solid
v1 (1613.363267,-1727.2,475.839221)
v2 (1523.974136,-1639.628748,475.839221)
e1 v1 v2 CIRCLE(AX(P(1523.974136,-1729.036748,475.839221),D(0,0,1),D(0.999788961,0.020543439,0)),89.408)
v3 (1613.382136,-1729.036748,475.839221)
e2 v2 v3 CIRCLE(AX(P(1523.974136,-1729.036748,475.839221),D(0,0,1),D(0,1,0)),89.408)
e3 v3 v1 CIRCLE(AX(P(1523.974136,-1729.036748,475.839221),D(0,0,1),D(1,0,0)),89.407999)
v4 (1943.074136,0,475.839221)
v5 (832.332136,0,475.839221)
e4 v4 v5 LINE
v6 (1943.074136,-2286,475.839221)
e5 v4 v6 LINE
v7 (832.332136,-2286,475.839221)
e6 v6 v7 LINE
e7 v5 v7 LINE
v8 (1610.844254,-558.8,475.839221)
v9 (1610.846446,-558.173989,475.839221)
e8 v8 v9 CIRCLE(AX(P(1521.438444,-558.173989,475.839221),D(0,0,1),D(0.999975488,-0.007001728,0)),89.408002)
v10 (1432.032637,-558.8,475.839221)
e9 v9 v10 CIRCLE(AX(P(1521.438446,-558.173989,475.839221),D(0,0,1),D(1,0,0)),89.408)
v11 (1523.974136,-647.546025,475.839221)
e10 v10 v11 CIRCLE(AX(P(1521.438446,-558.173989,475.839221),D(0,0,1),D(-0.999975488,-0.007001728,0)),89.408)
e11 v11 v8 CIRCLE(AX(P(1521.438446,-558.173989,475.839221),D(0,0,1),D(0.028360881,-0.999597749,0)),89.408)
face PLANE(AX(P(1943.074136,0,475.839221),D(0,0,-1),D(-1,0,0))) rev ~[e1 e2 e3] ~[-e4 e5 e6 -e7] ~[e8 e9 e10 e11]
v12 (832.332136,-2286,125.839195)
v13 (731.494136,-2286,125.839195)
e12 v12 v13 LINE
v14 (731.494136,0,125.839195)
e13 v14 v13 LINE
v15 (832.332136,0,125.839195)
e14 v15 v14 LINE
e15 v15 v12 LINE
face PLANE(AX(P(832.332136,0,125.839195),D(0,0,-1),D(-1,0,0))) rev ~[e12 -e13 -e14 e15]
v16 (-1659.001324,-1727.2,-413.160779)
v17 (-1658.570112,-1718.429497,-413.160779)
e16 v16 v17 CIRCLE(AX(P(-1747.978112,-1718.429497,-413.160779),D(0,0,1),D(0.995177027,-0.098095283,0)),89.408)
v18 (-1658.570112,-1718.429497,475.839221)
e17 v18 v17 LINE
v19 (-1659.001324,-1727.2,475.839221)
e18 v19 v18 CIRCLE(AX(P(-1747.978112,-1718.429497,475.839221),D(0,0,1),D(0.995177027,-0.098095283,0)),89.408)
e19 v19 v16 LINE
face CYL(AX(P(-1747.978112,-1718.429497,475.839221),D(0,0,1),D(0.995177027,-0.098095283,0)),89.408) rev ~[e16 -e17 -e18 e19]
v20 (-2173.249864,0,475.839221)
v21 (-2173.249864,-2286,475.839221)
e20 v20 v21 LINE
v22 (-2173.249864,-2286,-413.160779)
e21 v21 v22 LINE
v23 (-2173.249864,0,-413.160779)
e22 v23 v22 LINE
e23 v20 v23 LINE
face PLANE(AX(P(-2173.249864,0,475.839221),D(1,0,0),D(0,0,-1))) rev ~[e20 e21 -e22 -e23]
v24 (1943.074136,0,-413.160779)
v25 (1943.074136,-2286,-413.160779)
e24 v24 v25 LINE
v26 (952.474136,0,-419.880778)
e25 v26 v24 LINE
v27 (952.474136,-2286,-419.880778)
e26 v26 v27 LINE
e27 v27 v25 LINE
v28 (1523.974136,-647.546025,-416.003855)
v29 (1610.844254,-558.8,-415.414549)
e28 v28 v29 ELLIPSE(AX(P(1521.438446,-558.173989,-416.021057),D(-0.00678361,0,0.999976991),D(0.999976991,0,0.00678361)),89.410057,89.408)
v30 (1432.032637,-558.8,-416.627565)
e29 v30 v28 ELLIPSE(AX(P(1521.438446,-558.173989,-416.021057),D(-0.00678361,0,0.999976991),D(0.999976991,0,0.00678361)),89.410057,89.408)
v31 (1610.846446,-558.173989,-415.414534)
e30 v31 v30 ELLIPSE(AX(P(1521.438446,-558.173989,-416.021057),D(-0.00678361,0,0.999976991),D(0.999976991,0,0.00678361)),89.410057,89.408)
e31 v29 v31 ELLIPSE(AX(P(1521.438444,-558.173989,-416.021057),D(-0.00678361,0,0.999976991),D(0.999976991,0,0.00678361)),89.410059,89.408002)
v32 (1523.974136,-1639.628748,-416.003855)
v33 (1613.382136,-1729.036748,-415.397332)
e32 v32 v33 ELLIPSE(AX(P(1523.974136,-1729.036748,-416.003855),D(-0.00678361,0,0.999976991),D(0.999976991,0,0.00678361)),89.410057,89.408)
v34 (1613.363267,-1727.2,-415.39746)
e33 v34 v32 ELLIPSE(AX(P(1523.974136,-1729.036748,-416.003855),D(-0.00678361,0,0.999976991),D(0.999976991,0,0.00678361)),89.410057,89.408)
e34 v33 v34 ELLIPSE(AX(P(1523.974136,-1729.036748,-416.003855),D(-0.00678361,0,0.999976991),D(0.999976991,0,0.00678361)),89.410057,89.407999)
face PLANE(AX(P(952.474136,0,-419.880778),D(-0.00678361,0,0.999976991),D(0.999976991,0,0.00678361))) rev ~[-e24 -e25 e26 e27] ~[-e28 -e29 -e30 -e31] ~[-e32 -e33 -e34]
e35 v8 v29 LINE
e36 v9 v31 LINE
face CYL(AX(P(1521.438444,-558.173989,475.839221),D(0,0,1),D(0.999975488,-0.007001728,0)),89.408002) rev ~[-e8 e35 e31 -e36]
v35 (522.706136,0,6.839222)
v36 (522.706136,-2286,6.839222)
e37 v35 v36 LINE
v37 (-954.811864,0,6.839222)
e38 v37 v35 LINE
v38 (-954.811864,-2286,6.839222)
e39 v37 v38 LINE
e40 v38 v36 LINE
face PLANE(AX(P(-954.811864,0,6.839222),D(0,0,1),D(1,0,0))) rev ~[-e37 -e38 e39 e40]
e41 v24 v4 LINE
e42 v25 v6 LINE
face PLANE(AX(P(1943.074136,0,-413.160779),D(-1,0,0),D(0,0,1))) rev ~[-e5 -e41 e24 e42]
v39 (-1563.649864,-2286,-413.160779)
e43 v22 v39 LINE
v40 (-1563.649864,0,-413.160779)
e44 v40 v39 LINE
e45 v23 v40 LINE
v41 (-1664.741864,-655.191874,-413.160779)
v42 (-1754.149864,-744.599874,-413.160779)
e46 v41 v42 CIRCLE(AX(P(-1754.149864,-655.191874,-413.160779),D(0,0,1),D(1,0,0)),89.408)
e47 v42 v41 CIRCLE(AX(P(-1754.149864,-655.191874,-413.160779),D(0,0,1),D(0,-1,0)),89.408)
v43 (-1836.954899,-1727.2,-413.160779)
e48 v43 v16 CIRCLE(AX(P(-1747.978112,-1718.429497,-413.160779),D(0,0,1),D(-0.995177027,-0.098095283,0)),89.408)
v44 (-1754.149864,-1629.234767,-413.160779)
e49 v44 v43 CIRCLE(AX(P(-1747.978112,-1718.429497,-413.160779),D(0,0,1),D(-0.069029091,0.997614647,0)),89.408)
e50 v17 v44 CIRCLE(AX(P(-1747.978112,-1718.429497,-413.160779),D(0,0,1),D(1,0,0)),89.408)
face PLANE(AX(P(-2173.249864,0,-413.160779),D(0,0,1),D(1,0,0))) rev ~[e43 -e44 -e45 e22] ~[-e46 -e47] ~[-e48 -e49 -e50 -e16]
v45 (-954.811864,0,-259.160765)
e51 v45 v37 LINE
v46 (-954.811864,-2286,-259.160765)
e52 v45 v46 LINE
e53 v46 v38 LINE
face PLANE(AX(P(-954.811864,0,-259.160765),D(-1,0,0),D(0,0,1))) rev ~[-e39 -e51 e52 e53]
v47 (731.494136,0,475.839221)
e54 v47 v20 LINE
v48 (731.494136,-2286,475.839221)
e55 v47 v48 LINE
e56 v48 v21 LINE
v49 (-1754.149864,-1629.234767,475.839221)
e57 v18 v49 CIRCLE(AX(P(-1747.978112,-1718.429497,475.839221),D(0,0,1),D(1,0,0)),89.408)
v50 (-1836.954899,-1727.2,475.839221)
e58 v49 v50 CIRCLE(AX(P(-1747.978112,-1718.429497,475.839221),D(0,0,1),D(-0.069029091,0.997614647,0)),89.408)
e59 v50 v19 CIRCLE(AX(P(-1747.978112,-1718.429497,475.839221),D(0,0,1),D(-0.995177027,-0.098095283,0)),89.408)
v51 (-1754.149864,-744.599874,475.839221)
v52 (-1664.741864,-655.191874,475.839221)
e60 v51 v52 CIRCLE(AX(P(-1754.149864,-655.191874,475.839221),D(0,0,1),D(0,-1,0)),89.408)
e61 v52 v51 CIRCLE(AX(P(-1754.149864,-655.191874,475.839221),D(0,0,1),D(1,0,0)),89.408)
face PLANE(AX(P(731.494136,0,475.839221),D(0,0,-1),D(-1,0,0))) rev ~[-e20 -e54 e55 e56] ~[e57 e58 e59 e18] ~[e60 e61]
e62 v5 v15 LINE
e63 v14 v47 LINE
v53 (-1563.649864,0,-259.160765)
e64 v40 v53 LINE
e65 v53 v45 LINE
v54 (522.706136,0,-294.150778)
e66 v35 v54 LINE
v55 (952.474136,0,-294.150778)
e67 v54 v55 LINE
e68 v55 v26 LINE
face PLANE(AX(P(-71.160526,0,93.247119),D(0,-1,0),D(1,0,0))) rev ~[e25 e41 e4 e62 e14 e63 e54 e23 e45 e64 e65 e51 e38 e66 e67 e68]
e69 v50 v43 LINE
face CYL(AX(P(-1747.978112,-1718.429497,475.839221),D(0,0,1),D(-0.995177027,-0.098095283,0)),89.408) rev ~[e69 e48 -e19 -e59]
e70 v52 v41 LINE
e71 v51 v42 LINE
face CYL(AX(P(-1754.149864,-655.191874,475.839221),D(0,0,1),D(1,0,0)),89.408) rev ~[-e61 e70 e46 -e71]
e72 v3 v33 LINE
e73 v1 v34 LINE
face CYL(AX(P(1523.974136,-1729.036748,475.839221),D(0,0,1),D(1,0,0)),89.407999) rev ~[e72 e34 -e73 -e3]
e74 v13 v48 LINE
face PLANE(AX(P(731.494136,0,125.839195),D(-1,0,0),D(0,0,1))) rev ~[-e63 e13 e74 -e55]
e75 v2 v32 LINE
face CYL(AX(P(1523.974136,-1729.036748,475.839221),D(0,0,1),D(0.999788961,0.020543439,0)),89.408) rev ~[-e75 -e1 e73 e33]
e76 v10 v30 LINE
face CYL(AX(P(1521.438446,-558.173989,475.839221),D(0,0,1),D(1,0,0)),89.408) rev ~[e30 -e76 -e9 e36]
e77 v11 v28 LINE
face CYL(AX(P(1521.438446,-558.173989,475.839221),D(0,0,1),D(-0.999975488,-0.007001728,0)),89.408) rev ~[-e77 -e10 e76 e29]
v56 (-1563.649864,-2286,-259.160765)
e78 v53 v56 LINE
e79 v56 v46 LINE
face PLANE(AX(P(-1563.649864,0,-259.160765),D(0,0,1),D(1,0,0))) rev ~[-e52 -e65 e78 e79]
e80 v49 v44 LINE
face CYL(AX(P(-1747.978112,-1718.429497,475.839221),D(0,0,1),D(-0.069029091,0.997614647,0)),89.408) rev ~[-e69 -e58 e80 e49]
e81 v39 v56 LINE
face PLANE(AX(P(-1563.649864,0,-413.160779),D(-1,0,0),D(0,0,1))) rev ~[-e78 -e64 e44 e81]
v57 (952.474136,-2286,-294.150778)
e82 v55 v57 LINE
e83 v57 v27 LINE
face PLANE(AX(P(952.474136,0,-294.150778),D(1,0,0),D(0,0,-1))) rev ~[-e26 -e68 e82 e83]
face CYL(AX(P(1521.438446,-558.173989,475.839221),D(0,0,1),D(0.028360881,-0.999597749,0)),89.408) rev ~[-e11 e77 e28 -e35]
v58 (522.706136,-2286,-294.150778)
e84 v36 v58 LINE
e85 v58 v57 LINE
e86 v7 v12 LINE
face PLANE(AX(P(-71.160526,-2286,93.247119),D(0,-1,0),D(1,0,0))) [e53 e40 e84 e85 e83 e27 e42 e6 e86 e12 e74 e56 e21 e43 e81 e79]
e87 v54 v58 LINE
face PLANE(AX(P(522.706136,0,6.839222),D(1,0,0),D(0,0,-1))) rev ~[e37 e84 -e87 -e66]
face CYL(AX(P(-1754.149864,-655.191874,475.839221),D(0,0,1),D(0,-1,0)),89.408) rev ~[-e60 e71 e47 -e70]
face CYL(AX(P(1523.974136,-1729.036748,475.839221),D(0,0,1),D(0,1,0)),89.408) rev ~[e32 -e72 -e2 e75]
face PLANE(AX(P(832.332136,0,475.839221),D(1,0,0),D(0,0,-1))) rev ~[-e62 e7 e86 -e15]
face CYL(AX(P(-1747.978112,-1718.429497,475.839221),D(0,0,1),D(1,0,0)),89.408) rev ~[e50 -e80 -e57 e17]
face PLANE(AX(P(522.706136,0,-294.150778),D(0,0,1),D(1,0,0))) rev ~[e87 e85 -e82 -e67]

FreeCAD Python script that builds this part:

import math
import FreeCAD as App
import Part
import Sketcher

V = App.Vector
Q = App.Units.Quantity


def add_polygon(sketch, points):
    """Adds a closed chain of lines whose ends are joined by coincident constraints."""
    first, n = sketch.GeometryCount, len(points)
    for a, b in zip(points, points[1:] + points[:1]):
        sketch.addGeometry(Part.LineSegment(App.Vector(*a, 0), App.Vector(*b, 0)), False)
    for i in range(n):
        sketch.addConstraint(Sketcher.Constraint("Coincident", first + i, 2, first + (i + 1) % n, 1))

doc = App.newDocument("Part")
body = doc.addObject("PartDesign::Body", "Body")

sketch1 = body.newObject("Sketcher::SketchObject", "Sketch")
sketch1.AttachmentSupport = (doc.getObject("XZ_Plane"), [""])
sketch1.MapMode = "FlatFace"
add_polygon(sketch1, [(-2173, -413), (-1564, -413), (-1564, -259), (-955, -259), (-955, 7), (523, 7), (523, -294), (952, -294), (952, -420), (1943, -413), (1943, 476), (832, 476), (832, 126), (731, 126), (731, 476), (-2173, 476)])
sketch1.addConstraint(Sketcher.Constraint("Horizontal", 0))
sketch1.addConstraint(Sketcher.Constraint("Vertical", 1))
sketch1.addConstraint(Sketcher.Constraint("Horizontal", 2))
sketch1.addConstraint(Sketcher.Constraint("Vertical", 3))
sketch1.addConstraint(Sketcher.Constraint("Horizontal", 4))
sketch1.addConstraint(Sketcher.Constraint("Vertical", 5))
sketch1.addConstraint(Sketcher.Constraint("Horizontal", 6))
sketch1.addConstraint(Sketcher.Constraint("Vertical", 7))
sketch1.addConstraint(Sketcher.Constraint("Vertical", 9))
sketch1.addConstraint(Sketcher.Constraint("Horizontal", 10))
sketch1.addConstraint(Sketcher.Constraint("Vertical", 11))
sketch1.addConstraint(Sketcher.Constraint("Horizontal", 12))
sketch1.addConstraint(Sketcher.Constraint("Vertical", 13))
sketch1.addConstraint(Sketcher.Constraint("Horizontal", 14))
sketch1.addConstraint(Sketcher.Constraint("Vertical", 15))
sketch1.addConstraint(Sketcher.Constraint("Horizontal", 0, 2, 8, 2))
sketch1.addConstraint(Sketcher.Constraint("Horizontal", 10, 2, 13, 2))
sketch1.addConstraint(Sketcher.Constraint("DistanceX", 0, 1, 0, 2, Q("24 in")))
sketch1.addConstraint(Sketcher.Constraint("DistanceY", 9, 1, 9, 2, Q("35 in")))
sketch1.addConstraint(Sketcher.Constraint("DistanceX", 7, 2, 8, 2, Q("39 in")))
sketch1.addConstraint(Sketcher.Constraint("DistanceX", 2, 1, 2, 2, Q("23.97 in")))
sketch1.addConstraint(Sketcher.Constraint("DistanceX", 4, 1, 4, 2, Q("58.17 in")))
sketch1.addConstraint(Sketcher.Constraint("DistanceX", 6, 1, 6, 2, Q("16.92 in")))
sketch1.addConstraint(Sketcher.Constraint("DistanceX", 10, 2, 10, 1, Q("43.73 in")))
sketch1.addConstraint(Sketcher.Constraint("DistanceX", 12, 2, 12, 1, Q("3.97 in")))
sketch1.addConstraint(Sketcher.Constraint("DistanceY", 5, 2, 5, 1, Q("11.85 in")))
sketch1.addConstraint(Sketcher.Constraint("DistanceY", 7, 2, 7, 1, Q("4.95 in")))
sketch1.addConstraint(Sketcher.Constraint("DistanceY", 0, 2, 3, 2, Q("420.000001 mm")))
sketch1.addConstraint(Sketcher.Constraint("DistanceY", 1, 1, 1, 2, Q("154.000014 mm")))
sketch1.addConstraint(Sketcher.Constraint("DistanceY", 11, 2, 11, 1, Q("350.000026 mm")))
sketch1.addConstraint(Sketcher.Constraint("DistanceY", 0, 2, -1, 1, Q("413.160779 mm")))
sketch1.addConstraint(Sketcher.Constraint("DistanceX", 0, 2, -1, 1, Q("1563.649864 mm")))
pad1 = body.newObject("PartDesign::Pad", "Pad")
pad1.Profile = sketch1
pad1.Length = Q("90 in")

sketch2 = body.newObject("Sketcher::SketchObject", "Sketch001")
sketch2.AttachmentSupport = (doc.getObject("XY_Plane"), [""])
sketch2.MapMode = "FlatFace"
sketch2.AttachmentOffset = App.Placement(V(0, 0, 475.839221), App.Rotation())
sketch2.addGeometry(Part.ArcOfCircle(Part.Circle(V(-1754.149864, -655.191874, 0), V(0, 0, 1), 89.408), math.radians(-90), math.radians(0)), False)
sketch2.addGeometry(Part.ArcOfCircle(Part.Circle(V(-1754.149864, -655.191874, 0), V(0, 0, 1), 89.408), math.radians(0), math.radians(270)), False)
sketch2.addGeometry(Part.ArcOfCircle(Part.Circle(V(-1747.978112, -1718.429497, 0), V(0, 0, 1), 89.408), math.radians(93.958223), math.radians(185.629499)), False)
sketch2.addGeometry(Part.ArcOfCircle(Part.Circle(V(-1747.978112, -1718.429497, 0), V(0, 0, 1), 89.408), math.radians(-174.370501), math.radians(-5.629499)), False)
sketch2.addGeometry(Part.ArcOfCircle(Part.Circle(V(-1747.978112, -1718.429497, 0), V(0, 0, 1), 89.408), math.radians(-5.629499), math.radians(0)), False)
sketch2.addGeometry(Part.ArcOfCircle(Part.Circle(V(-1747.978112, -1718.429497, 0), V(0, 0, 1), 89.408), math.radians(0), math.radians(93.958223)), False)
sketch2.addGeometry(Part.ArcOfCircle(Part.Circle(V(1521.438446, -558.173989, 0), V(0, 0, 1), 89.408), math.radians(-179.598827), math.radians(-88.374823)), False)
sketch2.addGeometry(Part.ArcOfCircle(Part.Circle(V(1521.438446, -558.173989, 0), V(0, 0, 1), 89.408), math.radians(-88.374823), math.radians(-0.401173)), False)
sketch2.addGeometry(Part.ArcOfCircle(Part.Circle(V(1521.438444, -558.173989, 0), V(0, 0, 1), 89.408002), math.radians(-0.401173), math.radians(0)), False)
sketch2.addGeometry(Part.ArcOfCircle(Part.Circle(V(1521.438446, -558.173989, 0), V(0, 0, 1), 89.408), math.radians(0), math.radians(180.401173)), False)
sketch2.addGeometry(Part.ArcOfCircle(Part.Circle(V(1523.974136, -1729.036748, 0), V(0, 0, 1), 89.408), math.radians(90), math.radians(360)), False)
sketch2.addGeometry(Part.ArcOfCircle(Part.Circle(V(1523.974136, -1729.036748, 0), V(0, 0, 1), 89.407999), math.radians(0), math.radians(1.177135)), False)
sketch2.addGeometry(Part.ArcOfCircle(Part.Circle(V(1523.974136, -1729.036748, 0), V(0, 0, 1), 89.408), math.radians(1.177135), math.radians(90)), False)
sketch2.addConstraint(Sketcher.Constraint("Tangent", 0, 1, 1, 2))
sketch2.addConstraint(Sketcher.Constraint("Coincident", 1, 1, 0, 2))
sketch2.addConstraint(Sketcher.Constraint("Tangent", 2, 2, 3, 1))
sketch2.addConstraint(Sketcher.Constraint("Tangent", 3, 2, 4, 1))
sketch2.addConstraint(Sketcher.Constraint("Tangent", 4, 2, 5, 1))
sketch2.addConstraint(Sketcher.Constraint("Tangent", 5, 2, 2, 1))
sketch2.addConstraint(Sketcher.Constraint("Tangent", 6, 2, 7, 1))
sketch2.addConstraint(Sketcher.Constraint("Tangent", 7, 2, 8, 1))
sketch2.addConstraint(Sketcher.Constraint("Tangent", 8, 2, 9, 1))
sketch2.addConstraint(Sketcher.Constraint("Tangent", 9, 2, 6, 1))
sketch2.addConstraint(Sketcher.Constraint("Tangent", 10, 2, 11, 1))
sketch2.addConstraint(Sketcher.Constraint("Tangent", 11, 2, 12, 1))
sketch2.addConstraint(Sketcher.Constraint("Coincident", 12, 2, 10, 1))
sketch2.addConstraint(Sketcher.Constraint("Equal", 1, 2))
sketch2.addConstraint(Sketcher.Constraint("Equal", 2, 3))
sketch2.addConstraint(Sketcher.Constraint("Equal", 5, 6))
sketch2.addConstraint(Sketcher.Constraint("Equal", 6, 7))
sketch2.addConstraint(Sketcher.Constraint("Equal", 9, 10))
sketch2.addConstraint(Sketcher.Constraint("Equal", 10, 11))
sketch2.addConstraint(Sketcher.Constraint("Horizontal", 0, 3, 1, 1))
sketch2.addConstraint(Sketcher.Constraint("Horizontal", 2, 2, 3, 2))
sketch2.addConstraint(Sketcher.Constraint("Horizontal", 5, 3, 4, 2))
sketch2.addConstraint(Sketcher.Constraint("Horizontal", 9, 3, 8, 2))
sketch2.addConstraint(Sketcher.Constraint("Horizontal", 7, 2, 9, 2))
sketch2.addConstraint(Sketcher.Constraint("Horizontal", 12, 3, 10, 2))
sketch2.addConstraint(Sketcher.Constraint("Horizontal", 3, 2, 11, 2))
sketch2.addConstraint(Sketcher.Constraint("Vertical", 1, 3, 0, 1))
sketch2.addConstraint(Sketcher.Constraint("Vertical", 0, 1, 5, 2))
sketch2.addConstraint(Sketcher.Constraint("Vertical", 12, 3, 6, 2))
sketch2.addConstraint(Sketcher.Constraint("Vertical", 6, 2, 12, 2))
sketch2.addConstraint(Sketcher.Constraint("Radius", 0, Q("3.52 in")))
sketch2.addConstraint(Sketcher.Constraint("DistanceY", 2, 2, -1, 1, Q("68 in")))
sketch2.addConstraint(Sketcher.Constraint("DistanceY", 7, 2, -1, 1, Q("22 in")))
sketch2.addConstraint(Sketcher.Constraint("DistanceX", 2, 2, -1, 1, Q("1836.954899 mm")))
sketch2.addConstraint(Sketcher.Constraint("DistanceX", 9, 2, 6, 2, Q("91.941498 mm")))
sketch2.addConstraint(Sketcher.Constraint("DistanceX", 2, 3, -1, 1, Q("1747.978112 mm")))
sketch2.addConstraint(Sketcher.Constraint("DistanceY", 6, 3, -1, 1, Q("558.173989 mm")))
sketch2.addConstraint(Sketcher.Constraint("DistanceX", 1, 3, 6, 3, Q("3275.58831 mm")))
sketch2.addConstraint(Sketcher.Constraint("DistanceY", 10, 3, 6, 3, Q("1170.862758 mm")))
sketch2.addConstraint(Sketcher.Constraint("DistanceY", 4, 3, 5, 2, Q("89.19473 mm")))
sketch2.addConstraint(Sketcher.Constraint("DistanceY", 0, 3, -1, 1, Q("655.191874 mm")))
pocket1 = body.newObject("PartDesign::Pocket", "Pocket")
pocket1.Profile = sketch2
pocket1.Type = "ThroughAll"

doc.recompute()
